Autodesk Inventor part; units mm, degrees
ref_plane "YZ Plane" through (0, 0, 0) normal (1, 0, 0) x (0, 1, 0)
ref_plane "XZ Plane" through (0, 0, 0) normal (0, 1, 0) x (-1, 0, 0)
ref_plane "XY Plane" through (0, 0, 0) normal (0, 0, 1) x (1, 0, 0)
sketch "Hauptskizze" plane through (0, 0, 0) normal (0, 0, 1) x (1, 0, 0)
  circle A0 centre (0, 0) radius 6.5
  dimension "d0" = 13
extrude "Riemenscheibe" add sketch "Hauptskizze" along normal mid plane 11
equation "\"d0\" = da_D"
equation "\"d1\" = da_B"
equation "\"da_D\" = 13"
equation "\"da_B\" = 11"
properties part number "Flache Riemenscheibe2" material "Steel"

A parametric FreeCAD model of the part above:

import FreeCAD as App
import Part
import Sketcher

V = App.Vector

doc = App.newDocument("Part")
body = doc.addObject("PartDesign::Body", "Body")

sketch1 = body.newObject("Sketcher::SketchObject", "Sketch")
sketch1.AttachmentSupport = (doc.getObject("XY_Plane"), [""])
sketch1.MapMode = "FlatFace"
sketch1.addGeometry(Part.Circle(V(0, 0, 0), V(0, 0, 1), 6), False)
sketch1.addConstraint(Sketcher.Constraint("Coincident", 0, 3, -1, 1))
sketch1.addConstraint(Sketcher.Constraint("Diameter", 0, 13.0))
pad1 = body.newObject("PartDesign::Pad", "Pad")
pad1.Profile = sketch1
pad1.Length = 11
pad1.Midplane = True

doc.recompute()
